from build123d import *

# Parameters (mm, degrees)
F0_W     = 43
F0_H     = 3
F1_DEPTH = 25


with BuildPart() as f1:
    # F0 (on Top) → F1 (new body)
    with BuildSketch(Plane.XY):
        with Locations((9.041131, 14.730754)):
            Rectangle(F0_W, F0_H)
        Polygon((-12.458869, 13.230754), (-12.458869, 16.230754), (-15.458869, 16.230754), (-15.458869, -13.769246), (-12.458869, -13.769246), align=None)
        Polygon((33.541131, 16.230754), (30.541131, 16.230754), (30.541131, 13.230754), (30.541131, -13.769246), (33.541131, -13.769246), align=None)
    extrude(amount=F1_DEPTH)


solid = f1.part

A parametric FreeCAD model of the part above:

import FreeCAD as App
import Part
import Sketcher

doc = App.newDocument("Part")
body = doc.addObject("PartDesign::Body", "Body")

# Sketch on XY plane
sketch1 = doc.addObject("Sketcher::SketchObject", "Sketch")
body.addObject(sketch1)
sketch1.AttachmentSupport = (doc.XY_Plane, [""])
sketch1.MapMode = "FlatFace"
sketch1.addGeometry([
    Part.LineSegment(App.Vector(-12.5, 13.2, 0), App.Vector(30.5, 13.2, 0)),  # 0
    Part.LineSegment(App.Vector(30.5, 13.2, 0), App.Vector(30.5, -13.8, 0)),  # 1
    Part.LineSegment(App.Vector(30.5, -13.8, 0), App.Vector(33.5, -13.8, 0)),  # 2
    Part.LineSegment(App.Vector(33.5, -13.8, 0), App.Vector(33.5, 16.2, 0)),  # 3
    Part.LineSegment(App.Vector(33.5, 16.2, 0), App.Vector(-15.5, 16.2, 0)),  # 4
    Part.LineSegment(App.Vector(-15.5, 16.2, 0), App.Vector(-15.5, -13.8, 0)),  # 5
    Part.LineSegment(App.Vector(-15.5, -13.8, 0), App.Vector(-12.5, -13.8, 0)),  # 6
    Part.LineSegment(App.Vector(-12.5, -13.8, 0), App.Vector(-12.5, 13.2, 0)),  # 7
], False)
sketch1.addConstraint([
    Sketcher.Constraint("Coincident", 0, 2, 1, 1),
    Sketcher.Constraint("Coincident", 1, 2, 2, 1),
    Sketcher.Constraint("Coincident", 2, 2, 3, 1),
    Sketcher.Constraint("Coincident", 3, 2, 4, 1),
    Sketcher.Constraint("Coincident", 4, 2, 5, 1),
    Sketcher.Constraint("Coincident", 5, 2, 6, 1),
    Sketcher.Constraint("Coincident", 6, 2, 7, 1),
    Sketcher.Constraint("Coincident", 7, 2, 0, 1),
    Sketcher.Constraint("Horizontal", 0),
    Sketcher.Constraint("Vertical", 1),
    Sketcher.Constraint("Horizontal", 2),
    Sketcher.Constraint("Vertical", 3),
    Sketcher.Constraint("Horizontal", 4),
    Sketcher.Constraint("Vertical", 5),
    Sketcher.Constraint("Horizontal", 6),
    Sketcher.Constraint("Vertical", 7),
    Sketcher.Constraint("Horizontal", 2, 2, 5, 2),
    Sketcher.Constraint("Equal", 2, 6),
    Sketcher.Constraint("DistanceX", 0, 1, 0, 2, 43.0),
    Sketcher.Constraint("DistanceX", 2, 1, 2, 2, 3.0),
    Sketcher.Constraint("DistanceY", 1, 2, 1, 1, 27.0),
    Sketcher.Constraint("DistanceY", 3, 1, 3, 2, 30.0),
    Sketcher.Constraint("DistanceX", -1, 1, 0, 2, 30.541131),
    Sketcher.Constraint("DistanceY", -1, 1, 0, 2, 13.230754),
])
pad1 = doc.addObject("PartDesign::Pad", "Pad")
body.addObject(pad1)
pad1.Profile = sketch1
pad1.Length = 25

doc.recompute()
